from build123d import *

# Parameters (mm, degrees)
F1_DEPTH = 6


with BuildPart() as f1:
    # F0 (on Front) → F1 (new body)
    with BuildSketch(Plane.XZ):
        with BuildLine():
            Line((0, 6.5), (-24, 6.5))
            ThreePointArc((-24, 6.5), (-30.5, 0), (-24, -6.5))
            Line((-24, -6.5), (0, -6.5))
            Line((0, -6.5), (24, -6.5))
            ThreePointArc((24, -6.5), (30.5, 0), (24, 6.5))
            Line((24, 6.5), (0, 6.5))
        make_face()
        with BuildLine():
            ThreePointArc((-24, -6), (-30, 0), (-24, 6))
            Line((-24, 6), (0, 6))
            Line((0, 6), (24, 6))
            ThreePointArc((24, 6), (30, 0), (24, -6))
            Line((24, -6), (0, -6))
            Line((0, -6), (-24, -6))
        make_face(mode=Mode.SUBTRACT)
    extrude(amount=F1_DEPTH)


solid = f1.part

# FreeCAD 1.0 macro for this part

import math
import FreeCAD as App
import Part
import Sketcher

doc = App.newDocument("Part")
params = doc.addObject("Spreadsheet::Sheet", "Params")
for row, (alias, value) in enumerate([
    ("sketch1_radius", "6 mm"),
    ("sketch1_radius2", "6.5 mm"),
    ("sketch1_width", "48 mm"),
    ("pad1_length", "6 mm"),
], start=1):
    params.set(f"A{row}", alias)
    params.set(f"B{row}", "=" + value)
    params.setAlias(f"B{row}", alias)

body = doc.addObject("PartDesign::Body", "Body")

sketch1 = body.newObject("Sketcher::SketchObject", "Sketch")
sketch1.AttachmentSupport = (doc.getObject("XZ_Plane"), [""])
sketch1.MapMode = "FlatFace"
sketch1.addGeometry(Part.ArcOfCircle(Part.Circle(App.Vector(-24, 0, 0), App.Vector(0, 0, 1), 6.5), math.radians(90), math.radians(270)), False)
sketch1.addGeometry(Part.LineSegment(App.Vector(-24, -6.5, 0), App.Vector(24, -6.5, 0)), False)
sketch1.addGeometry(Part.ArcOfCircle(Part.Circle(App.Vector(24, 0, 0), App.Vector(0, 0, 1), 6.5), math.radians(-90), math.radians(90)), False)
sketch1.addGeometry(Part.LineSegment(App.Vector(24, 6.5, 0), App.Vector(-24, 6.5, 0)), False)
sketch1.addGeometry(Part.LineSegment(App.Vector(24, -6, 0), App.Vector(-24, -6, 0)), False)
sketch1.addGeometry(Part.ArcOfCircle(Part.Circle(App.Vector(-24, 0, 0), App.Vector(0, 0, 1), 6), math.radians(90), math.radians(270)), False)
sketch1.addGeometry(Part.LineSegment(App.Vector(-24, 6, 0), App.Vector(24, 6, 0)), False)
sketch1.addGeometry(Part.ArcOfCircle(Part.Circle(App.Vector(24, 0, 0), App.Vector(0, 0, 1), 6), math.radians(-90), math.radians(90)), False)
sketch1.addConstraint(Sketcher.Constraint("Tangent", 0, 2, 1, 1))
sketch1.addConstraint(Sketcher.Constraint("Tangent", 1, 2, 2, 1))
sketch1.addConstraint(Sketcher.Constraint("Tangent", 2, 2, 3, 1))
sketch1.addConstraint(Sketcher.Constraint("Tangent", 3, 2, 0, 1))
sketch1.addConstraint(Sketcher.Constraint("Tangent", 4, 2, 5, 2))
sketch1.addConstraint(Sketcher.Constraint("Tangent", 5, 1, 6, 1))
sketch1.addConstraint(Sketcher.Constraint("Tangent", 6, 2, 7, 2))
sketch1.addConstraint(Sketcher.Constraint("Tangent", 7, 1, 4, 1))
sketch1.addConstraint(Sketcher.Constraint("Horizontal", 1))
sketch1.addConstraint(Sketcher.Constraint("Horizontal", 3))
sketch1.addConstraint(Sketcher.Constraint("Horizontal", 4))
sketch1.addConstraint(Sketcher.Constraint("Horizontal", 6))
sketch1.addConstraint(Sketcher.Constraint("Coincident", 5, 3, 0, 3))
sketch1.addConstraint(Sketcher.Constraint("Symmetric", 0, 3, 2, 3, -1, 1))
sketch1.addConstraint(Sketcher.Constraint("Vertical", 7, 3, 1, 2))
sketch1.addConstraint(Sketcher.Constraint("Radius", 5, 6.0))
sketch1.addConstraint(Sketcher.Constraint("Radius", 0, 6.5))
sketch1.addConstraint(Sketcher.Constraint("DistanceX", 1, 1, 1, 2, 48.0))
sketch1.setExpression("Constraints[15]", "Params.sketch1_radius")
sketch1.setExpression("Constraints[16]", "Params.sketch1_radius2")
sketch1.setExpression("Constraints[17]", "Params.sketch1_width")
pad1 = body.newObject("PartDesign::Pad", "Pad")
pad1.Profile = sketch1
pad1.setExpression("Length", "Params.pad1_length")

doc.recompute()
